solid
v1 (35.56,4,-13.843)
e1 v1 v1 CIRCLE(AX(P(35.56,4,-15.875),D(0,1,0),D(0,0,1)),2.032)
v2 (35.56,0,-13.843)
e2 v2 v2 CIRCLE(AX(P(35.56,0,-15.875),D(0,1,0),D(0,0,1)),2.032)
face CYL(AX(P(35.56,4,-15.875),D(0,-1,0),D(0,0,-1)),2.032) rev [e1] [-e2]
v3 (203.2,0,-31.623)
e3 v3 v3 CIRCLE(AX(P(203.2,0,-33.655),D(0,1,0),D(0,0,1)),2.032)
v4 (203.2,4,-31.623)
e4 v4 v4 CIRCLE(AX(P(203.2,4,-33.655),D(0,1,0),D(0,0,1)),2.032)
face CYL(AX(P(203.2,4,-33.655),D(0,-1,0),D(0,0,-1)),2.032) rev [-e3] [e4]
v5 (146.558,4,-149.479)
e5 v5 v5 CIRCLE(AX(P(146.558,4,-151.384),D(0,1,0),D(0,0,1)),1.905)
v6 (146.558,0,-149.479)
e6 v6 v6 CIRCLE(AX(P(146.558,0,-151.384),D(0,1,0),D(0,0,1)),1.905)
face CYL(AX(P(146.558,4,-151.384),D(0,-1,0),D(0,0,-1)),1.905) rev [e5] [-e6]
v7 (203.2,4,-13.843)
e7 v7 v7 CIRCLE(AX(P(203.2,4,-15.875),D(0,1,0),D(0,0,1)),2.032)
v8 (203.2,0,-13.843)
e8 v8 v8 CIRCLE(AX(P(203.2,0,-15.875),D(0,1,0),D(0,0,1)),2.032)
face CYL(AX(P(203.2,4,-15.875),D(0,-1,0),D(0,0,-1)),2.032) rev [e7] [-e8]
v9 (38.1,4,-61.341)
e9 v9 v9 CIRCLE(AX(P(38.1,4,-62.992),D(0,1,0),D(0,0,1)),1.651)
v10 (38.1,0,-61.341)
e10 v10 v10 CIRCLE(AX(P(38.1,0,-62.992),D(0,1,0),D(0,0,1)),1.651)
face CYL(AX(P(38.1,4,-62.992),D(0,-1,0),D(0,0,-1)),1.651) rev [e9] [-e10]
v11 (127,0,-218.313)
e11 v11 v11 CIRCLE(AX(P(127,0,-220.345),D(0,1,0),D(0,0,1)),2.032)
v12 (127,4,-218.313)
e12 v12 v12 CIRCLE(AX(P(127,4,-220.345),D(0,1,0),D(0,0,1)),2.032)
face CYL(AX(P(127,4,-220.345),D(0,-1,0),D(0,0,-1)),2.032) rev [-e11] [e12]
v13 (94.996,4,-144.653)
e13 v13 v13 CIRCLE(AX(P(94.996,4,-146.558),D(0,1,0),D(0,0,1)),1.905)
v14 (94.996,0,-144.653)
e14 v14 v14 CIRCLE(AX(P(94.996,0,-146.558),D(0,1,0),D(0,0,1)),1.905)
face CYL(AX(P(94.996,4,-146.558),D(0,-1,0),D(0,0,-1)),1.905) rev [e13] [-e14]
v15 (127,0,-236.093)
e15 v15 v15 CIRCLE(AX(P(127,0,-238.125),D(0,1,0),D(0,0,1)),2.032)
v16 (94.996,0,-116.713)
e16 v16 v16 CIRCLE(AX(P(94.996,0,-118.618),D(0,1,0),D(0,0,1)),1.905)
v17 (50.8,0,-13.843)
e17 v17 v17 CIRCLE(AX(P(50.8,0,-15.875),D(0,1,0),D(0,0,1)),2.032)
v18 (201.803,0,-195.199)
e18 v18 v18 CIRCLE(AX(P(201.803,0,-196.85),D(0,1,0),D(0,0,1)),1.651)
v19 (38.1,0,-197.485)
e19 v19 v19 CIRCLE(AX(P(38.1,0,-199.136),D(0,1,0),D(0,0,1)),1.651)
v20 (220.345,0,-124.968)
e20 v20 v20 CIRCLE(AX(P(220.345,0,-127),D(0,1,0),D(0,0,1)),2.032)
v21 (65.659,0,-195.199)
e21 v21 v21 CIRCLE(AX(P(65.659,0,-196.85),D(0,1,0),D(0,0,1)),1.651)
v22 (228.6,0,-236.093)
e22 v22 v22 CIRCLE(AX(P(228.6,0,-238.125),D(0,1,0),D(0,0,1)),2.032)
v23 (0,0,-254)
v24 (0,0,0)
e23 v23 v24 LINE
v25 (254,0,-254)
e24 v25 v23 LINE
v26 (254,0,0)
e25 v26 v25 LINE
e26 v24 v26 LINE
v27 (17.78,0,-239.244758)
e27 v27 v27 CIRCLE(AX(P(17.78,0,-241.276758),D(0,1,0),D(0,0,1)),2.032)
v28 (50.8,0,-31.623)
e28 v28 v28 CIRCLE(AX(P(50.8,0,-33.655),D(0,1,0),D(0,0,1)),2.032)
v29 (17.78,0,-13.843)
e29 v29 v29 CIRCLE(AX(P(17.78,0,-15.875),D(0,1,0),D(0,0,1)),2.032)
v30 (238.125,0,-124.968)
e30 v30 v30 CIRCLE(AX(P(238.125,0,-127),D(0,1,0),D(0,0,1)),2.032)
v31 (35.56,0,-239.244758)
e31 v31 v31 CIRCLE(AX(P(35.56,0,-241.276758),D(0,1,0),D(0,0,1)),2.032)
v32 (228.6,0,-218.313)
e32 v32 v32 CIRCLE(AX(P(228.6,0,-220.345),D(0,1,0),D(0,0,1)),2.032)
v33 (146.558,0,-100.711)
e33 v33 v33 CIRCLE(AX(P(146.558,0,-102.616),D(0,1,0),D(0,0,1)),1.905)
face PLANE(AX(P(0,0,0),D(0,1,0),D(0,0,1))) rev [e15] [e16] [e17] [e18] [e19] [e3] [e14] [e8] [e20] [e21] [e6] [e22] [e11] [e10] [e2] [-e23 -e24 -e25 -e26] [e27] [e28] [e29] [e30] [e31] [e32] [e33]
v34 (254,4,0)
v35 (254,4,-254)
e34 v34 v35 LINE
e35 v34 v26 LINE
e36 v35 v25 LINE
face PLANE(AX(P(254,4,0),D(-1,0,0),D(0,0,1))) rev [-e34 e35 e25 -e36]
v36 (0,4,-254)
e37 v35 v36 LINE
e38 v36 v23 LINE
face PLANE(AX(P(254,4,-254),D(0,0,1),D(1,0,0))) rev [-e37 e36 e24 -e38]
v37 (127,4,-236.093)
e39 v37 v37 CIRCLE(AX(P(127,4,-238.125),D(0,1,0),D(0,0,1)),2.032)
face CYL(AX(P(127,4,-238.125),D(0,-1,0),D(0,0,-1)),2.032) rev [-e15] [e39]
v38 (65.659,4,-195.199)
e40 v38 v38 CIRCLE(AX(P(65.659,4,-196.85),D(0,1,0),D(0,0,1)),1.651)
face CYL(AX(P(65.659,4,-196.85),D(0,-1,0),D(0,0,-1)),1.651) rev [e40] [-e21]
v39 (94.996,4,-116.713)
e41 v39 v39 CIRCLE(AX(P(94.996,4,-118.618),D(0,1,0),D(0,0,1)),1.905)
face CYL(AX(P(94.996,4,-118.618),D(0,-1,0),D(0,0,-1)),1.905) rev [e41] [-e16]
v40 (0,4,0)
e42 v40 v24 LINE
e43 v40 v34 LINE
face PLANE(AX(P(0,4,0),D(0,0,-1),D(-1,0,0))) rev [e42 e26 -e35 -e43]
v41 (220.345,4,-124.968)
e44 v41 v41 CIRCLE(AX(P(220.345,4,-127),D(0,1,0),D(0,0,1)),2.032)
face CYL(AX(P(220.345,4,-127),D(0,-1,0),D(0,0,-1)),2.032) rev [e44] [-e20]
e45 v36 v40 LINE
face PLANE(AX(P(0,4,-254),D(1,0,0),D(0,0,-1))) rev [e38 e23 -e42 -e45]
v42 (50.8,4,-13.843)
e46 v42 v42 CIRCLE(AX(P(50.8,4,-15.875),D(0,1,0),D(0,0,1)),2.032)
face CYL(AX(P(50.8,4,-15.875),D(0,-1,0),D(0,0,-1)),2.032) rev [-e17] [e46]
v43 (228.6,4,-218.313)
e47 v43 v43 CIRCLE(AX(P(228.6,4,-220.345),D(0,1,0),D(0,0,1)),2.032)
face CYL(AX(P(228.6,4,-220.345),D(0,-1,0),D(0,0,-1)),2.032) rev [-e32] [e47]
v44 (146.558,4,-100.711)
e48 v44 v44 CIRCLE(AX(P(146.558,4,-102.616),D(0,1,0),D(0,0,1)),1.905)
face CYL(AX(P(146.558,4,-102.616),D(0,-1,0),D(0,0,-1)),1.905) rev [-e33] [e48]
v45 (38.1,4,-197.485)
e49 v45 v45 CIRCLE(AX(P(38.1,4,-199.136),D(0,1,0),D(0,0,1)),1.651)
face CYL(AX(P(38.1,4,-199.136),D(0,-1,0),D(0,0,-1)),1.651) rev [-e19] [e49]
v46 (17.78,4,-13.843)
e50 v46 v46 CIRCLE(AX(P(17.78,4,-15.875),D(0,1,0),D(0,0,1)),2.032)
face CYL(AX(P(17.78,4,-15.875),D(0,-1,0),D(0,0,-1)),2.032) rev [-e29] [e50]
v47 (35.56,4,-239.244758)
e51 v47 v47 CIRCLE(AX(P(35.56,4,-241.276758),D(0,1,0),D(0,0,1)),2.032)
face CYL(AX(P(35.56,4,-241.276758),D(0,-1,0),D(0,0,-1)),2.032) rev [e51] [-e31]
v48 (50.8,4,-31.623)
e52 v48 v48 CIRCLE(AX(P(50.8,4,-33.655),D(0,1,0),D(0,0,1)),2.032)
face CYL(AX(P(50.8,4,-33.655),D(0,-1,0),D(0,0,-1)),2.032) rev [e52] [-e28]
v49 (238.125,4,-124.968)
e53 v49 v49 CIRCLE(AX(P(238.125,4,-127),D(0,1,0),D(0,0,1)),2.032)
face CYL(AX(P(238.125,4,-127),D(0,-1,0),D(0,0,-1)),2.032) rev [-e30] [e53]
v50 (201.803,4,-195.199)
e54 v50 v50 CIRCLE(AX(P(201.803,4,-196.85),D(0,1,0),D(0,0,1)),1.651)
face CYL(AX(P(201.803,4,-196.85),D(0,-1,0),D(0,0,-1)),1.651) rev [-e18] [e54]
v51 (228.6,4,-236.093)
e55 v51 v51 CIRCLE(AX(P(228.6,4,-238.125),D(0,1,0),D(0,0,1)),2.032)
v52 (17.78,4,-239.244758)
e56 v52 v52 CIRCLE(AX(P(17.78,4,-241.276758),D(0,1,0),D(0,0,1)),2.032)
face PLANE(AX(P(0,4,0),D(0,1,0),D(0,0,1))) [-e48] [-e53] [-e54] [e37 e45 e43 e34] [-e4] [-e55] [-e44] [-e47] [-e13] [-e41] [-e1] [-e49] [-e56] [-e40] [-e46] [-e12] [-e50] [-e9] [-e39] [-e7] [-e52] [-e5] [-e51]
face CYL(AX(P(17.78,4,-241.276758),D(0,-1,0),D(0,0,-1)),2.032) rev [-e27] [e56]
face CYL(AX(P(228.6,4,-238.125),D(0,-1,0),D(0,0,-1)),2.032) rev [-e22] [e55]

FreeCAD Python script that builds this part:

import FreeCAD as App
import Part
import Sketcher

V = App.Vector
Q = App.Units.Quantity


def add_polygon(sketch, points):
    """Adds a closed chain of lines whose ends are joined by coincident constraints."""
    first, n = sketch.GeometryCount, len(points)
    for a, b in zip(points, points[1:] + points[:1]):
        sketch.addGeometry(Part.LineSegment(App.Vector(*a, 0), App.Vector(*b, 0)), False)
    for i in range(n):
        sketch.addConstraint(Sketcher.Constraint("Coincident", first + i, 2, first + (i + 1) % n, 1))

doc = App.newDocument("Part")
body = doc.addObject("PartDesign::Body", "Body")

sketch1 = body.newObject("Sketcher::SketchObject", "Sketch")
sketch1.AttachmentSupport = (doc.getObject("XZ_Plane"), [""])
sketch1.MapMode = "FlatFace"
add_polygon(sketch1, [(0, -254), (0, 0), (254, 0), (254, -254)])
sketch1.addGeometry(Part.Circle(V(17.8, -15.9, 0), V(0, 0, 1), 2), False)
sketch1.addGeometry(Part.Circle(V(35.6, -15.9, 0), V(0, 0, 1), 2), False)
sketch1.addGeometry(Part.Circle(V(50.8, -15.9, 0), V(0, 0, 1), 2), False)
sketch1.addGeometry(Part.Circle(V(50.8, -33.7, 0), V(0, 0, 1), 2), False)
sketch1.addGeometry(Part.Circle(V(38.1, -63, 0), V(0, 0, 1), 1.7), False)
sketch1.addGeometry(Part.Circle(V(95, -118.6, 0), V(0, 0, 1), 1.9), False)
sketch1.addGeometry(Part.Circle(V(203.2, -15.9, 0), V(0, 0, 1), 2), False)
sketch1.addGeometry(Part.Circle(V(203.2, -33.7, 0), V(0, 0, 1), 2), False)
sketch1.addGeometry(Part.Circle(V(146.6, -102.6, 0), V(0, 0, 1), 1.9), False)
sketch1.addGeometry(Part.Circle(V(220.3, -127, 0), V(0, 0, 1), 2), False)
sketch1.addGeometry(Part.Circle(V(238.1, -127, 0), V(0, 0, 1), 2), False)
sketch1.addGeometry(Part.Circle(V(95, -146.6, 0), V(0, 0, 1), 1.9), False)
sketch1.addGeometry(Part.Circle(V(38.1, -199.1, 0), V(0, 0, 1), 1.7), False)
sketch1.addGeometry(Part.Circle(V(65.7, -196.8, 0), V(0, 0, 1), 1.7), False)
sketch1.addGeometry(Part.Circle(V(17.8, -241.3, 0), V(0, 0, 1), 2), False)
sketch1.addGeometry(Part.Circle(V(35.6, -241.3, 0), V(0, 0, 1), 2), False)
sketch1.addGeometry(Part.Circle(V(127, -220.3, 0), V(0, 0, 1), 2), False)
sketch1.addGeometry(Part.Circle(V(127, -238.1, 0), V(0, 0, 1), 2), False)
sketch1.addGeometry(Part.Circle(V(146.6, -151.4, 0), V(0, 0, 1), 1.9), False)
sketch1.addGeometry(Part.Circle(V(201.8, -196.8, 0), V(0, 0, 1), 1.7), False)
sketch1.addGeometry(Part.Circle(V(228.6, -220.3, 0), V(0, 0, 1), 2), False)
sketch1.addGeometry(Part.Circle(V(228.6, -238.1, 0), V(0, 0, 1), 2), False)
sketch1.addConstraint(Sketcher.Constraint("Vertical", 0))
sketch1.addConstraint(Sketcher.Constraint("Horizontal", 1))
sketch1.addConstraint(Sketcher.Constraint("Vertical", 2))
sketch1.addConstraint(Sketcher.Constraint("Horizontal", 3))
sketch1.addConstraint(Sketcher.Constraint("Coincident", 0, 2, -1, 1))
sketch1.addConstraint(Sketcher.Constraint("Equal", 4, 5))
sketch1.addConstraint(Sketcher.Constraint("Equal", 5, 6))
sketch1.addConstraint(Sketcher.Constraint("Equal", 6, 7))
sketch1.addConstraint(Sketcher.Constraint("Equal", 7, 10))
sketch1.addConstraint(Sketcher.Constraint("Equal", 10, 11))
sketch1.addConstraint(Sketcher.Constraint("Equal", 9, 12))
sketch1.addConstraint(Sketcher.Constraint("Equal", 11, 13))
sketch1.addConstraint(Sketcher.Constraint("Equal", 13, 14))
sketch1.addConstraint(Sketcher.Constraint("Equal", 12, 15))
sketch1.addConstraint(Sketcher.Constraint("Equal", 8, 16))
sketch1.addConstraint(Sketcher.Constraint("Equal", 16, 17))
sketch1.addConstraint(Sketcher.Constraint("Equal", 14, 18))
sketch1.addConstraint(Sketcher.Constraint("Equal", 18, 19))
sketch1.addConstraint(Sketcher.Constraint("Equal", 19, 20))
sketch1.addConstraint(Sketcher.Constraint("Equal", 20, 21))
sketch1.addConstraint(Sketcher.Constraint("Equal", 15, 22))
sketch1.addConstraint(Sketcher.Constraint("Equal", 17, 23))
sketch1.addConstraint(Sketcher.Constraint("Equal", 21, 24))
sketch1.addConstraint(Sketcher.Constraint("Equal", 24, 25))
sketch1.addConstraint(Sketcher.Constraint("Horizontal", 4, 3, 5, 3))
sketch1.addConstraint(Sketcher.Constraint("Horizontal", 5, 3, 6, 3))
sketch1.addConstraint(Sketcher.Constraint("Horizontal", 6, 3, 10, 3))
sketch1.addConstraint(Sketcher.Constraint("Horizontal", 7, 3, 11, 3))
sketch1.addConstraint(Sketcher.Constraint("Horizontal", 13, 3, 14, 3))
sketch1.addConstraint(Sketcher.Constraint("Horizontal", 18, 3, 19, 3))
sketch1.addConstraint(Sketcher.Constraint("Horizontal", 17, 3, 23, 3))
sketch1.addConstraint(Sketcher.Constraint("Horizontal", 20, 3, 24, 3))
sketch1.addConstraint(Sketcher.Constraint("Horizontal", 21, 3, 25, 3))
sketch1.addConstraint(Sketcher.Constraint("Vertical", 6, 3, 7, 3))
sketch1.addConstraint(Sketcher.Constraint("Vertical", 10, 3, 11, 3))
sketch1.addConstraint(Sketcher.Constraint("Vertical", 9, 3, 15, 3))
sketch1.addConstraint(Sketcher.Constraint("Vertical", 8, 3, 16, 3))
sketch1.addConstraint(Sketcher.Constraint("Vertical", 4, 3, 18, 3))
sketch1.addConstraint(Sketcher.Constraint("Vertical", 5, 3, 19, 3))
sketch1.addConstraint(Sketcher.Constraint("Vertical", 20, 3, 21, 3))
sketch1.addConstraint(Sketcher.Constraint("Vertical", 12, 3, 22, 3))
sketch1.addConstraint(Sketcher.Constraint("Vertical", 24, 3, 25, 3))
sketch1.addConstraint(Sketcher.Constraint("Equal", 3, 0))
sketch1.addConstraint(Sketcher.Constraint("Diameter", 4, Q("0.16 in")))
sketch1.addConstraint(Sketcher.Constraint("Diameter", 8, Q("0.13 in")))
sketch1.addConstraint(Sketcher.Constraint("Diameter", 9, Q("0.15 in")))
sketch1.addConstraint(Sketcher.Constraint("DistanceX", 1, 1, 1, 2, Q("10 in")))
sketch1.addConstraint(Sketcher.Constraint("DistanceX", -1, 1, 6, 3, Q("2 in")))
sketch1.addConstraint(Sketcher.Constraint("DistanceX", -1, 1, 10, 3, Q("8 in")))
sketch1.addConstraint(Sketcher.Constraint("DistanceY", 13, 3, -1, 1, Q("5 in")))
sketch1.addConstraint(Sketcher.Constraint("DistanceX", -1, 1, 20, 3, Q("5 in")))
sketch1.addConstraint(Sketcher.Constraint("DistanceX", -1, 1, 24, 3, Q("9 in")))
sketch1.addConstraint(Sketcher.Constraint("DistanceX", -1, 1, 4, 3, Q("0.7 in")))
sketch1.addConstraint(Sketcher.Constraint("DistanceX", -1, 1, 5, 3, Q("1.4 in")))
sketch1.addConstraint(Sketcher.Constraint("DistanceX", -1, 1, 8, 3, Q("1.5 in")))
sketch1.addConstraint(Sketcher.Constraint("DistanceY", 7, 3, 6, 3, Q("0.7 in")))
sketch1.addConstraint(Sketcher.Constraint("DistanceX", 13, 3, 14, 3, Q("0.7 in")))
sketch1.addConstraint(Sketcher.Constraint("DistanceY", 15, 3, 9, 3, Q("1.1 in")))
sketch1.addConstraint(Sketcher.Constraint("DistanceY", 16, 3, 12, 3, Q("3.8 in")))
sketch1.addConstraint(Sketcher.Constraint("DistanceY", 21, 3, 20, 3, Q("0.7 in")))
sketch1.addConstraint(Sketcher.Constraint("DistanceY", 8, 3, -1, 1, Q("2.48 in")))
sketch1.addConstraint(Sketcher.Constraint("DistanceX", -1, 1, 9, 3, Q("3.74 in")))
sketch1.addConstraint(Sketcher.Constraint("DistanceY", 9, 3, -1, 1, Q("4.67 in")))
sketch1.addConstraint(Sketcher.Constraint("DistanceX", -1, 1, 12, 3, Q("5.77 in")))
sketch1.addConstraint(Sketcher.Constraint("DistanceY", 12, 3, -1, 1, Q("4.04 in")))
sketch1.addConstraint(Sketcher.Constraint("DistanceY", 17, 3, -1, 1, Q("7.75 in")))
sketch1.addConstraint(Sketcher.Constraint("DistanceY", 22, 3, -1, 1, Q("5.96 in")))
sketch1.addConstraint(Sketcher.Constraint("DistanceX", 23, 3, 13, 3, Q("0.73 in")))
sketch1.addConstraint(Sketcher.Constraint("DistanceY", 4, 3, -1, 1, Q("0.625 in")))
sketch1.addConstraint(Sketcher.Constraint("DistanceX", -1, 1, 13, 3, Q("8.675 in")))
sketch1.addConstraint(Sketcher.Constraint("DistanceX", -1, 1, 17, 3, Q("2.585 in")))
sketch1.addConstraint(Sketcher.Constraint("DistanceY", 20, 3, -1, 1, Q("8.675 in")))
sketch1.addConstraint(Sketcher.Constraint("DistanceY", 18, 3, -1, 1, 241.276758))
pad1 = body.newObject("PartDesign::Pad", "Pad")
pad1.Profile = sketch1
pad1.Length = 4
pad1.Reversed = True

doc.recompute()
